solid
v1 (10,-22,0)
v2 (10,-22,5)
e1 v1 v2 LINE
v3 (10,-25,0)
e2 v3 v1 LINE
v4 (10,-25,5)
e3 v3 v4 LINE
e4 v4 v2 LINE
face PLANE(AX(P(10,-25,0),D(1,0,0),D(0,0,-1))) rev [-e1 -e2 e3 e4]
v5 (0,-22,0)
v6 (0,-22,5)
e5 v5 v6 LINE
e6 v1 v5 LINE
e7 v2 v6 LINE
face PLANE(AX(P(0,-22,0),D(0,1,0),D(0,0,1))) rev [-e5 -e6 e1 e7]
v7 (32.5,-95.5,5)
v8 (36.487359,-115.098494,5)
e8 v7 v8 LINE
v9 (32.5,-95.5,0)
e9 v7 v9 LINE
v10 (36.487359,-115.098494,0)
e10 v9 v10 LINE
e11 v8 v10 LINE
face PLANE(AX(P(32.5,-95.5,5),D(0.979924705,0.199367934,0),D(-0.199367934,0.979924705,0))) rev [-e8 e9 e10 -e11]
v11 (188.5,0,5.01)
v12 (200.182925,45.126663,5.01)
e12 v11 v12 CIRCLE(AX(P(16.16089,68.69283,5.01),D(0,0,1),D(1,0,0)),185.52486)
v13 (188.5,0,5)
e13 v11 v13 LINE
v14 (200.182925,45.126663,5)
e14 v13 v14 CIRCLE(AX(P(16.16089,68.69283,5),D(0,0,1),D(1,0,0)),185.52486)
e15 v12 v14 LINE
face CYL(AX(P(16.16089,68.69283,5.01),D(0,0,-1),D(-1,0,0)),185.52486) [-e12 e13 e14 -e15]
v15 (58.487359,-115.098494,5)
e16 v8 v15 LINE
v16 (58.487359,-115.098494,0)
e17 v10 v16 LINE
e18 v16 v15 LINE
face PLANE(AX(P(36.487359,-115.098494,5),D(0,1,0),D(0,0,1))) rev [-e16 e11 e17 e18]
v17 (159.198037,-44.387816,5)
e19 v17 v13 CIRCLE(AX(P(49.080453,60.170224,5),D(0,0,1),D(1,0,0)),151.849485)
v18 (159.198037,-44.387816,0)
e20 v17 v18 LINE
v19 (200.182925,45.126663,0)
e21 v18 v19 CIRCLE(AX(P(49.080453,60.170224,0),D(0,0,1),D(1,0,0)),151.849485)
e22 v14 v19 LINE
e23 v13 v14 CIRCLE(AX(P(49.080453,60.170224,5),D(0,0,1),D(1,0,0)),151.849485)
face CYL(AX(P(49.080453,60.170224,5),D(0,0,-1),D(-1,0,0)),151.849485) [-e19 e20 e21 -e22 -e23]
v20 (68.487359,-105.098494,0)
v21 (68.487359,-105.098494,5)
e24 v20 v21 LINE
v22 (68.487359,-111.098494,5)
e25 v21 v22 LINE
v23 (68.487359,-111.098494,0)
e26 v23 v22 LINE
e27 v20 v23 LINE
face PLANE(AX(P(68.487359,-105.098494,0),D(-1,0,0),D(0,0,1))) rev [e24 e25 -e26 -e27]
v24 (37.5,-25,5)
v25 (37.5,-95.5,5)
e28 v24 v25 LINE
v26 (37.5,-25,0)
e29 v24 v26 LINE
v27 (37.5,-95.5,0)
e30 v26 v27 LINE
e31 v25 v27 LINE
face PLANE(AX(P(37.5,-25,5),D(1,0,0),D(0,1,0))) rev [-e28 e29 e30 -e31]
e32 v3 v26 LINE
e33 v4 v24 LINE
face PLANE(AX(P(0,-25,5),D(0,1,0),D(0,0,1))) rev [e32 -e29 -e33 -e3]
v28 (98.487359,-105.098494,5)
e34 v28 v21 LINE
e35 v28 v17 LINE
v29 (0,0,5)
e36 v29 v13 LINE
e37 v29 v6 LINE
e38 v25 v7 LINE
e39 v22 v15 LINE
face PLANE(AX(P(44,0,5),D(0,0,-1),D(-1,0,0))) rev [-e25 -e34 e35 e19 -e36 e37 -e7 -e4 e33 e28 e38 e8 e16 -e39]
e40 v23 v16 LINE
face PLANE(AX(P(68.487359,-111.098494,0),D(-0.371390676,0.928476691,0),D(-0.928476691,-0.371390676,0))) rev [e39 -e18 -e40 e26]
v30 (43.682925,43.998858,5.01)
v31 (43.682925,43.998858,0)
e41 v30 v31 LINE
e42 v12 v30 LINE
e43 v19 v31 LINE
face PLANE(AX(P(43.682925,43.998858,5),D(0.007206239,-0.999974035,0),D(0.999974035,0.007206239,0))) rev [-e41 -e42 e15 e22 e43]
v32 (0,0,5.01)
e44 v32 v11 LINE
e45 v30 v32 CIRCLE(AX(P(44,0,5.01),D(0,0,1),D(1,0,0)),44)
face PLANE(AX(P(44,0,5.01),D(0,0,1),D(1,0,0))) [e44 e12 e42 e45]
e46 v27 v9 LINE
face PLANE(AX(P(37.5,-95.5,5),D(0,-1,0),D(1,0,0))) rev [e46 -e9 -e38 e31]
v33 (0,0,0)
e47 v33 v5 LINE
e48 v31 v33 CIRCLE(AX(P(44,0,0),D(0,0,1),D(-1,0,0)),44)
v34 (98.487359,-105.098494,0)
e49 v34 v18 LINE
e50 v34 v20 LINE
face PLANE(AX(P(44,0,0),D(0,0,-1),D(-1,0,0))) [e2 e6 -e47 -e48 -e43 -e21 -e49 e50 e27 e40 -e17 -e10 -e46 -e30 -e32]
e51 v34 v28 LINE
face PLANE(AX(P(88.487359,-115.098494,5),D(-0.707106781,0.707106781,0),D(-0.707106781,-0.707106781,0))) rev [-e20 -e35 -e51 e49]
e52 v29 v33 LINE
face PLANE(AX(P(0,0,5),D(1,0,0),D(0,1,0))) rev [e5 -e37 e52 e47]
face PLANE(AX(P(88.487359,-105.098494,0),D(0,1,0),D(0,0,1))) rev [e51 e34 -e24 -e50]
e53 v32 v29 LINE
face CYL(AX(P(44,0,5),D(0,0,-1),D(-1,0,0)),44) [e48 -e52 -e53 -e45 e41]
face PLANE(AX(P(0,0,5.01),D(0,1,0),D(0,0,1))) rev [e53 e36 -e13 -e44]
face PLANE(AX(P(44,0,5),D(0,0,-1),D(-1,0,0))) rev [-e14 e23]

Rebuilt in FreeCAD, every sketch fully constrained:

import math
import FreeCAD as App
import Part
import Sketcher

V = App.Vector
Q = App.Units.Quantity


def add_polygon(sketch, points):
    """Adds a closed chain of lines whose ends are joined by coincident constraints."""
    first, n = sketch.GeometryCount, len(points)
    for a, b in zip(points, points[1:] + points[:1]):
        sketch.addGeometry(Part.LineSegment(App.Vector(*a, 0), App.Vector(*b, 0)), False)
    for i in range(n):
        sketch.addConstraint(Sketcher.Constraint("Coincident", first + i, 2, first + (i + 1) % n, 1))

doc = App.newDocument("Part")
body = doc.addObject("PartDesign::Body", "Body")

# Sketch on XY plane
sketch1 = body.newObject("Sketcher::SketchObject", "Sketch")
sketch1.AttachmentSupport = (doc.getObject("XY_Plane"), [""])
sketch1.MapMode = "FlatFace"
sketch1.addGeometry(Part.LineSegment(V(0, 0, 0), V(0, -25, 0)), False)
sketch1.addGeometry(Part.LineSegment(V(0, -25, 0), V(37.5, -25, 0)), False)
sketch1.addGeometry(Part.LineSegment(V(37.5, -25, 0), V(37.5, -95.5, 0)), False)
sketch1.addGeometry(Part.LineSegment(V(37.5, -95.5, 0), V(32.5, -95.5, 0)), False)
sketch1.addGeometry(Part.LineSegment(V(32.5, -95.5, 0), V(36.487359, -115.098494, 0)), False)
sketch1.addGeometry(Part.LineSegment(V(36.487359, -115.098494, 0), V(88.487359, -115.098494, 0)), False)
sketch1.addGeometry(Part.LineSegment(V(88.487359, -115.098494, 0), V(159.198037, -44.387816, 0)), False)
sketch1.addGeometry(Part.ArcOfCircle(Part.Circle(V(49.080453, 60.170224, 0), V(0, 0, 1), 151.849485), math.radians(-43.516519), math.radians(-5.685556)), False)
sketch1.addGeometry(Part.LineSegment(V(200.182925, 45.126663, 0), V(43.682925, 43.998858, 0)), False)
sketch1.addGeometry(Part.ArcOfCircle(Part.Circle(V(44, 0, 0), V(0, 0, 1), 44), math.radians(90.412891), math.radians(180)), False)
sketch1.addConstraint(Sketcher.Constraint("Coincident", 0, 2, 1, 1))
sketch1.addConstraint(Sketcher.Constraint("Coincident", 1, 2, 2, 1))
sketch1.addConstraint(Sketcher.Constraint("Coincident", 2, 2, 3, 1))
sketch1.addConstraint(Sketcher.Constraint("Coincident", 3, 2, 4, 1))
sketch1.addConstraint(Sketcher.Constraint("Coincident", 4, 2, 5, 1))
sketch1.addConstraint(Sketcher.Constraint("Coincident", 5, 2, 6, 1))
sketch1.addConstraint(Sketcher.Constraint("Coincident", 6, 2, 7, 1))
sketch1.addConstraint(Sketcher.Constraint("Coincident", 7, 2, 8, 1))
sketch1.addConstraint(Sketcher.Constraint("Tangent", 8, 2, 9, 1))
sketch1.addConstraint(Sketcher.Constraint("Tangent", 9, 2, 0, 1))
sketch1.addConstraint(Sketcher.Constraint("Vertical", 0))
sketch1.addConstraint(Sketcher.Constraint("Horizontal", 1))
sketch1.addConstraint(Sketcher.Constraint("Vertical", 2))
sketch1.addConstraint(Sketcher.Constraint("Horizontal", 3))
sketch1.addConstraint(Sketcher.Constraint("Horizontal", 5))
sketch1.addConstraint(Sketcher.Constraint("Coincident", 9, 2, -1, 1))
sketch1.addConstraint(Sketcher.Constraint("Radius", 9, Q("44 mm")))
sketch1.addConstraint(Sketcher.Constraint("DistanceX", 3, 2, 3, 1, Q("5 mm")))
sketch1.addConstraint(Sketcher.Constraint("DistanceX", 5, 1, 5, 2, Q("52 mm")))
sketch1.addConstraint(Sketcher.Constraint("DistanceY", 0, 2, 0, 1, Q("25 mm")))
sketch1.addConstraint(Sketcher.Constraint("Angle", 6, Q("45 deg")))
sketch1.addConstraint(Sketcher.Constraint("Distance", 4, Q("20 mm")))
sketch1.addConstraint(Sketcher.Constraint("Distance", 6, Q("100 mm")))
sketch1.addConstraint(Sketcher.Constraint("DistanceX", 1, 1, 1, 2, Q("37.5 mm")))
sketch1.addConstraint(Sketcher.Constraint("DistanceY", 2, 2, 2, 1, Q("70.5 mm")))
sketch1.addConstraint(Sketcher.Constraint("Angle", 4, Q("-78.5 deg")))
sketch1.addConstraint(Sketcher.Constraint("Radius", 7, Q("151.849485 mm")))
sketch1.addConstraint(Sketcher.Constraint("DistanceX", 6, 2, 7, 2, Q("40.984889 mm")))
sketch1.addConstraint(Sketcher.Constraint("DistanceY", 6, 2, 7, 2, Q("89.514479 mm")))
pad1 = body.newObject("PartDesign::Pad", "Pad")
pad1.Profile = sketch1
pad1.Length = 5

# Sketch on XY plane
sketch2 = body.newObject("Sketcher::SketchObject", "Sketch001")
sketch2.AttachmentSupport = (doc.getObject("XY_Plane"), [""])
sketch2.MapMode = "FlatFace"
sketch2.AttachmentOffset = App.Placement(V(0, 0, 5), App.Rotation())
sketch2.addGeometry(Part.LineSegment(V(0, 0, 0), V(188.5, 0, 0)), False)
sketch2.addGeometry(Part.ArcOfCircle(Part.Circle(V(16.16089, 68.69283, 0), V(0, 0, 1), 185.52486), math.radians(-21.731785), math.radians(-7.297672)), False)
sketch2.addGeometry(Part.LineSegment(V(200.182925, 45.126663, 0), V(43.682925, 43.998858, 0)), False)
sketch2.addGeometry(Part.ArcOfCircle(Part.Circle(V(44, 0, 0), V(0, 0, 1), 44), math.radians(90.412891), math.radians(180)), False)
sketch2.addConstraint(Sketcher.Constraint("Coincident", 0, 2, 1, 1))
sketch2.addConstraint(Sketcher.Constraint("Coincident", 1, 2, 2, 1))
sketch2.addConstraint(Sketcher.Constraint("Tangent", 2, 2, 3, 1))
sketch2.addConstraint(Sketcher.Constraint("Coincident", 3, 2, 0, 1))
sketch2.addConstraint(Sketcher.Constraint("Horizontal", 0))
sketch2.addConstraint(Sketcher.Constraint("Coincident", 3, 2, -1, 1))
sketch2.addConstraint(Sketcher.Constraint("PointOnObject", 3, 3, -1))
sketch2.addConstraint(Sketcher.Constraint("Radius", 3, Q("44 mm")))
sketch2.addConstraint(Sketcher.Constraint("DistanceX", 0, 1, 0, 2, Q("188.5 mm")))
sketch2.addConstraint(Sketcher.Constraint("DistanceX", 2, 2, 1, 2, Q("156.5 mm")))
sketch2.addConstraint(Sketcher.Constraint("Radius", 1, Q("185.52486 mm")))
sketch2.addConstraint(Sketcher.Constraint("DistanceX", -1, 1, 1, 3, Q("16.16089 mm")))
pad2 = body.newObject("PartDesign::Pad", "Pad001")
pad2.Profile = sketch2
pad2.Length = 0.01

# Sketch on XY plane
sketch3 = body.newObject("Sketcher::SketchObject", "Sketch002")
sketch3.AttachmentSupport = (doc.getObject("XY_Plane"), [""])
sketch3.MapMode = "FlatFace"
sketch3.AttachmentOffset = App.Placement(V(0, 0, 5), App.Rotation())
add_polygon(sketch3, [(0, -22), (0, -25), (10, -25), (10, -22)])  # lines 0-3
sketch3.addConstraint(Sketcher.Constraint("Vertical", 0))
sketch3.addConstraint(Sketcher.Constraint("Horizontal", 1))
sketch3.addConstraint(Sketcher.Constraint("Vertical", 2))
sketch3.addConstraint(Sketcher.Constraint("Horizontal", 3))
sketch3.addConstraint(Sketcher.Constraint("PointOnObject", 0, 2, -2))
sketch3.addConstraint(Sketcher.Constraint("DistanceX", 1, 1, 1, 2, Q("10 mm")))
sketch3.addConstraint(Sketcher.Constraint("DistanceY", 0, 2, 0, 1, Q("3 mm")))
sketch3.addConstraint(Sketcher.Constraint("DistanceY", 0, 2, -1, 1, Q("25 mm")))
pocket1 = body.newObject("PartDesign::Pocket", "Pocket")
pocket1.Profile = sketch3
pocket1.Type = "ThroughAll"

# Sketch on XY plane
sketch4 = body.newObject("Sketcher::SketchObject", "Sketch003")
sketch4.AttachmentSupport = (doc.getObject("XY_Plane"), [""])
sketch4.MapMode = "FlatFace"
sketch4.AttachmentOffset = App.Placement(V(0, 0, 5), App.Rotation())
add_polygon(sketch4, [(68.487359, -105.098494), (68.487359, -111.098494), (58.487359, -115.098494), (88.487359, -115.098494), (98.487359, -105.098494)])  # lines 0-4
sketch4.addConstraint(Sketcher.Constraint("Vertical", 0))
sketch4.addConstraint(Sketcher.Constraint("Horizontal", 2))
sketch4.addConstraint(Sketcher.Constraint("Horizontal", 4))
sketch4.addConstraint(Sketcher.Constraint("Equal", 2, 4))
sketch4.addConstraint(Sketcher.Constraint("DistanceX", 2, 1, 2, 2, Q("30 mm")))
sketch4.addConstraint(Sketcher.Constraint("DistanceY", 0, 2, 0, 1, Q("6 mm")))
sketch4.addConstraint(Sketcher.Constraint("Angle", 3, Q("45 deg")))
sketch4.addConstraint(Sketcher.Constraint("DistanceX", 1, 2, 0, 2, Q("10 mm")))
sketch4.addConstraint(Sketcher.Constraint("DistanceX", -1, 1, 0, 2, Q("68.487359 mm")))
sketch4.addConstraint(Sketcher.Constraint("DistanceY", 0, 2, -1, 1, Q("111.098494 mm")))
pocket2 = body.newObject("PartDesign::Pocket", "Pocket001")
pocket2.Profile = sketch4
pocket2.Type = "ThroughAll"

doc.recompute()
